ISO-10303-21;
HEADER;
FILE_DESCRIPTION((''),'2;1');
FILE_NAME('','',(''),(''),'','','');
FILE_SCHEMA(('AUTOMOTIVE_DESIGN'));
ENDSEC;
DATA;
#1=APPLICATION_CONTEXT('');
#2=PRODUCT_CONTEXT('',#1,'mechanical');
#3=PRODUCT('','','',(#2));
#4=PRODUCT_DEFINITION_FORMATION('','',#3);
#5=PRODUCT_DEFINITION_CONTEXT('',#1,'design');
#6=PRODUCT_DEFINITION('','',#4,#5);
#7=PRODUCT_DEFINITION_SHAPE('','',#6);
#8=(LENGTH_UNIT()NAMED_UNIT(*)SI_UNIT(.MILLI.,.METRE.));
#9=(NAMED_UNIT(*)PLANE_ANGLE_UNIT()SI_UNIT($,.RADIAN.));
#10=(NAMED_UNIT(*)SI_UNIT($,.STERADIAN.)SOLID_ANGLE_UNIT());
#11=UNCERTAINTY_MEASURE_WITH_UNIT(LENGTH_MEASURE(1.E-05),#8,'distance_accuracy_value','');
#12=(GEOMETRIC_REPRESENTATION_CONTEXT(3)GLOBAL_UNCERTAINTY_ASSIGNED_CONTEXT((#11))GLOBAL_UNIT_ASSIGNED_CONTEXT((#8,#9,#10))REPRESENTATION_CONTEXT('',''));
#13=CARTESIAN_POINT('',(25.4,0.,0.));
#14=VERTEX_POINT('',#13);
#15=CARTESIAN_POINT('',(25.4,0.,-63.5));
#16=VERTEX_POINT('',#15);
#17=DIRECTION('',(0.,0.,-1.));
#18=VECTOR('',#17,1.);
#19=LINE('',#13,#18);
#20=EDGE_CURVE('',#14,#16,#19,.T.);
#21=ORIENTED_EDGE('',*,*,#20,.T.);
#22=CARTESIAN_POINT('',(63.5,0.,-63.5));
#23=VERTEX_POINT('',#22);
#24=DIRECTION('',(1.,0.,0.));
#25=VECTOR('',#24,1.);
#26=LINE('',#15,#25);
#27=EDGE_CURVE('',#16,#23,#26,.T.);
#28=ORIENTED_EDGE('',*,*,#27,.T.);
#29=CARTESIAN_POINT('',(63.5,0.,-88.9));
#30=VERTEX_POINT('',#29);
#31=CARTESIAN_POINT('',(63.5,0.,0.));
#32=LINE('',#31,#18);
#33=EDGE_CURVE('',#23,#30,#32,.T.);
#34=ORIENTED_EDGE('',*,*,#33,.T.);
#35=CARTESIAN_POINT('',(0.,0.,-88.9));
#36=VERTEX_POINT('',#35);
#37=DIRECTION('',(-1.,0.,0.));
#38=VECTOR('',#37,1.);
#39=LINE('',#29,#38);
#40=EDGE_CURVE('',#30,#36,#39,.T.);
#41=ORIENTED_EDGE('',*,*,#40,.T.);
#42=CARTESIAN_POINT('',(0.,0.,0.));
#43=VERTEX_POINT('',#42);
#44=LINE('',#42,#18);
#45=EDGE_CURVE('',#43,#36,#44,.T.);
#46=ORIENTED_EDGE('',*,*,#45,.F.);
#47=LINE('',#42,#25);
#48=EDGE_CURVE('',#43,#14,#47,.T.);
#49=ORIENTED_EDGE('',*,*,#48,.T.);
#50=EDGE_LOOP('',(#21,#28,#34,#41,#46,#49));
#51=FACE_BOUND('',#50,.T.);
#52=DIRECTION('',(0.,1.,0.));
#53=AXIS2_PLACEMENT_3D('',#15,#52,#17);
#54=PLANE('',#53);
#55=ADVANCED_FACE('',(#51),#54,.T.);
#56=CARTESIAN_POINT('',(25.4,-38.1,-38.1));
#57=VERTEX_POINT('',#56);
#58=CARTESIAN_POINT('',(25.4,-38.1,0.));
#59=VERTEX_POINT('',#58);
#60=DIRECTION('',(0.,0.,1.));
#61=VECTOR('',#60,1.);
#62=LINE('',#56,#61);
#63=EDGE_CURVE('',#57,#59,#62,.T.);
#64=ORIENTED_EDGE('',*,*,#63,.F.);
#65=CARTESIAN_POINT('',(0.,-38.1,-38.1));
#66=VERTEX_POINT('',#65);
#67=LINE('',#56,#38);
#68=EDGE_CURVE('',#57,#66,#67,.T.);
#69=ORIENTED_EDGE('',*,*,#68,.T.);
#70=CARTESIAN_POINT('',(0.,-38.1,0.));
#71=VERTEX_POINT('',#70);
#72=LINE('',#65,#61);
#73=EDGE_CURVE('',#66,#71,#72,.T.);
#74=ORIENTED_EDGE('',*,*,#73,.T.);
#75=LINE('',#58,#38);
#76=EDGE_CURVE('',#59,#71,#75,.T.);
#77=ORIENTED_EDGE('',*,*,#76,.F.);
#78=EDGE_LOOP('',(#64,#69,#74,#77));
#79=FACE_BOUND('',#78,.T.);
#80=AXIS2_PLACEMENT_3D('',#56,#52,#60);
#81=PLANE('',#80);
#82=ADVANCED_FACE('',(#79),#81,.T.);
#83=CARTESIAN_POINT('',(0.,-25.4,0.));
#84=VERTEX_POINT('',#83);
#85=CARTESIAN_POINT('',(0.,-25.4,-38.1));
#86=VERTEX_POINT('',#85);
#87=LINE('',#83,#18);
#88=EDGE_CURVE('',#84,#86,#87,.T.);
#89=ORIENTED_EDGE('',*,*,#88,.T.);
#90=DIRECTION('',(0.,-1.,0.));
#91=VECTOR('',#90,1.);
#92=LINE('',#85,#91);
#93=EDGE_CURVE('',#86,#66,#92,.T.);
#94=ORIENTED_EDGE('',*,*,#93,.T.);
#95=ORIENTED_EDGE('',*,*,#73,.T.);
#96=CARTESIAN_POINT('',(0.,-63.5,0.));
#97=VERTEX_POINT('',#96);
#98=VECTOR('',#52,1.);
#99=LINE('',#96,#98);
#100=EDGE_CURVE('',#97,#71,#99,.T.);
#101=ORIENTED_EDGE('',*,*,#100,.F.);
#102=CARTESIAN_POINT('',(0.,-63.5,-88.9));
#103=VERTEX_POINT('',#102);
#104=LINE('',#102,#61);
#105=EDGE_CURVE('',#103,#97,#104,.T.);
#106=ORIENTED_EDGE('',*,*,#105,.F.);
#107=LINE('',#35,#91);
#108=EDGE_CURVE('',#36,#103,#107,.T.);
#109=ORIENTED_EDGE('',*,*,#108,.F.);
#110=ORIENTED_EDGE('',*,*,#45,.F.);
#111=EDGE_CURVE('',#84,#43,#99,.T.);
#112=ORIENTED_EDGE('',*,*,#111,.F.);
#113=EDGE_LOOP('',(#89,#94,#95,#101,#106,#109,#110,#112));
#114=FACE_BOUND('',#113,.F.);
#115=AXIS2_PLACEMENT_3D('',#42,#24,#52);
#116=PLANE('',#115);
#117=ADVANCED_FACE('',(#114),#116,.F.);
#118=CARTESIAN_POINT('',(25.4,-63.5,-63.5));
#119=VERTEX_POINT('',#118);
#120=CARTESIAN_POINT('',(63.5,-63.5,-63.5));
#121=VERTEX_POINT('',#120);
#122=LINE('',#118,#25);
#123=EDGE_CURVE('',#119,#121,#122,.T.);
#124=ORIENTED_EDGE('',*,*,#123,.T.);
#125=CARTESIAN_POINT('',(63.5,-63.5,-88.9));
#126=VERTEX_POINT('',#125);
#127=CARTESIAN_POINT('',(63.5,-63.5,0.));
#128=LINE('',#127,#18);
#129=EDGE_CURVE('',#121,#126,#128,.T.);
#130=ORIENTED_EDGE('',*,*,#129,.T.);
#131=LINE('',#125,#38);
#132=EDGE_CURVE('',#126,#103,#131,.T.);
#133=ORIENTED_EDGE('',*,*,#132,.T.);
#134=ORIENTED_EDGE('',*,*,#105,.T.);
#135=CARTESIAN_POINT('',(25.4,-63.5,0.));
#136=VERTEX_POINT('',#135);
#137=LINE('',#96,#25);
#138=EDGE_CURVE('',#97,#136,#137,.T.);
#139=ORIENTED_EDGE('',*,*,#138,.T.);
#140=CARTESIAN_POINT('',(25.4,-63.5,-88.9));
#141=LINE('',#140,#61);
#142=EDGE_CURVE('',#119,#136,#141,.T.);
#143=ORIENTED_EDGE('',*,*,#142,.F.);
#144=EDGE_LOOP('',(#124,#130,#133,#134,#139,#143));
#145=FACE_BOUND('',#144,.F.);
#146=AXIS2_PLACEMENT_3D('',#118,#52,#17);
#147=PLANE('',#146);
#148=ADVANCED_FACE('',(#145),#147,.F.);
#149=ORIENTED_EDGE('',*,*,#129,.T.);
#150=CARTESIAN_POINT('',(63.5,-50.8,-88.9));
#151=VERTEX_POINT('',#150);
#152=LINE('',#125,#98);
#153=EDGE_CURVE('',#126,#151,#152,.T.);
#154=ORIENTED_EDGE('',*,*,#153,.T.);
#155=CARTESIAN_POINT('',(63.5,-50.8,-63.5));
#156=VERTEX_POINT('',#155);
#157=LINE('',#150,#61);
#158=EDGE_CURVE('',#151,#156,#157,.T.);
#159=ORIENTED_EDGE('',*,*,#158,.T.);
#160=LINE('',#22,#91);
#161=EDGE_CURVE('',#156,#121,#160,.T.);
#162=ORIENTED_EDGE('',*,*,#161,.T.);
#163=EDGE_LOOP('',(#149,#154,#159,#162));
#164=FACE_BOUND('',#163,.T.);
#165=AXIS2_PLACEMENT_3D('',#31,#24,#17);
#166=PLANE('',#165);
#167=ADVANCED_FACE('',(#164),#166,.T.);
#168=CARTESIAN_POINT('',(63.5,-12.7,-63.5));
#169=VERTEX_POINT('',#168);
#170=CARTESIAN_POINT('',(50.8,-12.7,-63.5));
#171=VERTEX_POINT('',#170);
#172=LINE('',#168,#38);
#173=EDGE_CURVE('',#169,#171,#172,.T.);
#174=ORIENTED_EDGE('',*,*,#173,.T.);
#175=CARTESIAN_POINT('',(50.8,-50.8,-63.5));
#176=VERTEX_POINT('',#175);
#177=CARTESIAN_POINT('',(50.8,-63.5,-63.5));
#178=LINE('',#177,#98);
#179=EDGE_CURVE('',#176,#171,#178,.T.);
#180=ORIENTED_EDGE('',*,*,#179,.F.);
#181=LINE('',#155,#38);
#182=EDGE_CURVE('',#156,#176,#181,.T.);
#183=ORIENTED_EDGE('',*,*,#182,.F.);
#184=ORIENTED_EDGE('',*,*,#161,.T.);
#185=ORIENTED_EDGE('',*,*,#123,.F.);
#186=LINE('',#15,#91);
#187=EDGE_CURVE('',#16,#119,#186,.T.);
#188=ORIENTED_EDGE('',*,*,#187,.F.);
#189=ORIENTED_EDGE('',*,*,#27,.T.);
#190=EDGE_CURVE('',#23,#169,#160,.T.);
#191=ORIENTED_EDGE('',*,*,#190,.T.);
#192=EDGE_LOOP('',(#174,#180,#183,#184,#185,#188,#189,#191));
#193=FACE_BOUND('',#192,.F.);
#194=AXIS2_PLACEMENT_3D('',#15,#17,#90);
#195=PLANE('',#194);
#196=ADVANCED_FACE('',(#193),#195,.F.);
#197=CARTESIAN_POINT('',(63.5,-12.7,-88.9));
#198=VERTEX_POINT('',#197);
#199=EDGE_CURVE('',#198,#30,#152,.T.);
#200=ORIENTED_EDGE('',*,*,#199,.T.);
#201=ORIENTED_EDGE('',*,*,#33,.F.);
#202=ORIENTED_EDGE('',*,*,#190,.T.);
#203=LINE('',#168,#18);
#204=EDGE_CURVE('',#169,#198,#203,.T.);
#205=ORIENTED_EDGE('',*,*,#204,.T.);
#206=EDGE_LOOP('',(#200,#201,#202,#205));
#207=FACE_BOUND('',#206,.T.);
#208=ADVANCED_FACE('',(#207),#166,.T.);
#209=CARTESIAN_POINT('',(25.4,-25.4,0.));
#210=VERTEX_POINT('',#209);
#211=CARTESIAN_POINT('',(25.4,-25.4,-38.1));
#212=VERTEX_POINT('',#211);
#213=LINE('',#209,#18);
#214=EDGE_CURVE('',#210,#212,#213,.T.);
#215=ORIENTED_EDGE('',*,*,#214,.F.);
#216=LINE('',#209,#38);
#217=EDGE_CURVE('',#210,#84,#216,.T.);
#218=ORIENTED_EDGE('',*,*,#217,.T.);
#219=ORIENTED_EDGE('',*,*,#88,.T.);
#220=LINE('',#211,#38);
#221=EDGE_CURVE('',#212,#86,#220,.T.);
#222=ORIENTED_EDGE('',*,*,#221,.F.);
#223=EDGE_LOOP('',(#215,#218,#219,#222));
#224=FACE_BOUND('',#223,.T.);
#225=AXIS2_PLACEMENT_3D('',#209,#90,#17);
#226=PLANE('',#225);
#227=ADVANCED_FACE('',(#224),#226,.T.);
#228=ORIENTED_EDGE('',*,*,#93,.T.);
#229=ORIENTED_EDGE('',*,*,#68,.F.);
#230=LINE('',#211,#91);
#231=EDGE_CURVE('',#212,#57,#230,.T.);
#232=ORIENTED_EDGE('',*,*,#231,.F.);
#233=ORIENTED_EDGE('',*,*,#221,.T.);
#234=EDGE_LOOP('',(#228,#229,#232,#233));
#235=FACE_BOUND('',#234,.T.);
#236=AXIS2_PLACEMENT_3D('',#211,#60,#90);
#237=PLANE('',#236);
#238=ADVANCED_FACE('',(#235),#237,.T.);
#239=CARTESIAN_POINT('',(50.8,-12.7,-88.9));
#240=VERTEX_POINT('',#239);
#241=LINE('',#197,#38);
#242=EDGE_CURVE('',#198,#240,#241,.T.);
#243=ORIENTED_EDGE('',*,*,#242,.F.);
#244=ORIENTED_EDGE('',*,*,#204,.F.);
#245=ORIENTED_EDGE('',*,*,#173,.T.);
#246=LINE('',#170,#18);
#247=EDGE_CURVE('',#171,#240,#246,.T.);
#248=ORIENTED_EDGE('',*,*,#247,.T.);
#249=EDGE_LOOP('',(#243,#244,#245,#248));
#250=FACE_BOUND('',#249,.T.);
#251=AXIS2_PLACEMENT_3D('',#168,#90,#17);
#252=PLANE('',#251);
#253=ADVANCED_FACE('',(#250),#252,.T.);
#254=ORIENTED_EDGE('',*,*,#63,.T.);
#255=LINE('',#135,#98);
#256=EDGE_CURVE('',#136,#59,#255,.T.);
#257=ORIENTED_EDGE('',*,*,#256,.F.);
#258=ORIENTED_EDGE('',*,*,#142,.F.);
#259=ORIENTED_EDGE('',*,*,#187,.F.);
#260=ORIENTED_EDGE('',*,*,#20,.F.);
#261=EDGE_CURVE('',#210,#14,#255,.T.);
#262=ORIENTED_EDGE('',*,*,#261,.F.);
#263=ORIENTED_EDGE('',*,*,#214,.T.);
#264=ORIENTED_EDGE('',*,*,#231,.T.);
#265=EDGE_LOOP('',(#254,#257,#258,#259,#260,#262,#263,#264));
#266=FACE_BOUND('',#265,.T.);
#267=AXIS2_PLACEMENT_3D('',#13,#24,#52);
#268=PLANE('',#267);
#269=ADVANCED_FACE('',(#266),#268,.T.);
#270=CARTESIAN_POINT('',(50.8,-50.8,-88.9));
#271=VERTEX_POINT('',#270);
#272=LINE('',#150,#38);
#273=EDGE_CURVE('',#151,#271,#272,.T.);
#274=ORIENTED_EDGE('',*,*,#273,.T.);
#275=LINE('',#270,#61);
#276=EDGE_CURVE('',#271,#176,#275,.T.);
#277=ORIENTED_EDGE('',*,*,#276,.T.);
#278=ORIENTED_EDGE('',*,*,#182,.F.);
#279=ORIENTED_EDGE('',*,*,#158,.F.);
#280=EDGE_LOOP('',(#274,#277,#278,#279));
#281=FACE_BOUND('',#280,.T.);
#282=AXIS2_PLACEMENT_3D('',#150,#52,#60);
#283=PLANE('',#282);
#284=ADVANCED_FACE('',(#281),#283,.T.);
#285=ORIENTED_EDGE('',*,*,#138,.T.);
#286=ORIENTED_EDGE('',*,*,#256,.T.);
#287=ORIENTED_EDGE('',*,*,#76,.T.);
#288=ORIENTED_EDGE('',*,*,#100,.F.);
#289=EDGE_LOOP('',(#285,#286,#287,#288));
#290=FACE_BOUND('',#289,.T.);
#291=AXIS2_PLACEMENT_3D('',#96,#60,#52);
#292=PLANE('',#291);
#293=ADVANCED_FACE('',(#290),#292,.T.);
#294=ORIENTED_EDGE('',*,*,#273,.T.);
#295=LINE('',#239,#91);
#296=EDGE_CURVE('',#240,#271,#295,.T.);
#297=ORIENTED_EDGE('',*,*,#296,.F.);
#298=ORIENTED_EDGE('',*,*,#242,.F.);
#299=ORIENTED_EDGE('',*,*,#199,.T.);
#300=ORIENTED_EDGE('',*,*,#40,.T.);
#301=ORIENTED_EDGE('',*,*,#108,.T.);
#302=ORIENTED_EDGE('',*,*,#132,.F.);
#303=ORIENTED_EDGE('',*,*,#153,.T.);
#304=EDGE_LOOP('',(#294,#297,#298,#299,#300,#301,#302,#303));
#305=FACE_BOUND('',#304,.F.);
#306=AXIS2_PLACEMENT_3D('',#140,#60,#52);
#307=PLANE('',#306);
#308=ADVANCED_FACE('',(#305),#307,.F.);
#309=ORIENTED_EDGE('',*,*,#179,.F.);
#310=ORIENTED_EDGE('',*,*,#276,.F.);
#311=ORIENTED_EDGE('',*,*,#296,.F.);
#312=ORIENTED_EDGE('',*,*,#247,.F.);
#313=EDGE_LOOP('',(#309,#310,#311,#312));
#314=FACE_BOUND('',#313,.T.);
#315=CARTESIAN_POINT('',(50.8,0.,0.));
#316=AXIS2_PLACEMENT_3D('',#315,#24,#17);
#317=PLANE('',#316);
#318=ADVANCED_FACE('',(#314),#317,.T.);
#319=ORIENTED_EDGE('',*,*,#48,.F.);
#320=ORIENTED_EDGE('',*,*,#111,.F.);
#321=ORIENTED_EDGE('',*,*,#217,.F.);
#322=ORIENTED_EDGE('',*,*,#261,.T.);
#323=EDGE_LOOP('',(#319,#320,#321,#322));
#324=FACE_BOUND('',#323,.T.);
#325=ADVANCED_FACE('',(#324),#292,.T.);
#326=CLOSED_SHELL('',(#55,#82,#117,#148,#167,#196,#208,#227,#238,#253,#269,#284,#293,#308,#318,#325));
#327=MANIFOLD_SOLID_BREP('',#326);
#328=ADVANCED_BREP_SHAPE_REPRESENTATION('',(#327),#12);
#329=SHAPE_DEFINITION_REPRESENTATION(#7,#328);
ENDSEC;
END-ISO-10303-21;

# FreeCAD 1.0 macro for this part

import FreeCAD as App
import Part
import Sketcher
Q = App.Units.Quantity

doc = App.newDocument("Part")
params = doc.addObject("Spreadsheet::Sheet", "Params")
for row, (alias, value) in enumerate([
    ("sketch1_width", "2.5 in"),
    ("sketch1_height", "3.5 in"),
    ("pad1_length", "1 in"),
    ("sketch2_width", "0.5 in"),
    ("sketch2_height", "1.5 in"),
    ("pocket1_length", "1 in"),
    ("sketch3_height", "1 in"),
    ("sketch3_width", "2.5 in"),
    ("pad2_length", "1.5 in"),
    ("sketch4_width", "1.5 in"),
    ("sketch4_height", "1 in"),
    ("pocket2_length", "0.5 in"),
], start=1):
    params.set(f"A{row}", alias)
    params.set(f"B{row}", "=" + value)
    params.setAlias(f"B{row}", alias)

body = doc.addObject("PartDesign::Body", "Body")

# Sketch on YZ plane
sketch1 = body.newObject("Sketcher::SketchObject", "Sketch")
sketch1.AttachmentSupport = (doc.getObject("YZ_Plane"), [""])
sketch1.MapMode = "FlatFace"
sketch1.addGeometry([
    Part.LineSegment(App.Vector(0, -89, 0), App.Vector(0, 0, 0)),
    Part.LineSegment(App.Vector(0, 0, 0), App.Vector(-64, 0, 0)),
    Part.LineSegment(App.Vector(-64, 0, 0), App.Vector(-64, -89, 0)),
    Part.LineSegment(App.Vector(-64, -89, 0), App.Vector(0, -89, 0)),
], False)
sketch1.addConstraint([
    Sketcher.Constraint("Coincident", 0, 2, 1, 1),
    Sketcher.Constraint("Coincident", 1, 2, 2, 1),
    Sketcher.Constraint("Coincident", 2, 2, 3, 1),
    Sketcher.Constraint("Coincident", 3, 2, 0, 1),
    Sketcher.Constraint("Vertical", 0),
    Sketcher.Constraint("Horizontal", 1),
    Sketcher.Constraint("Vertical", 2),
    Sketcher.Constraint("Horizontal", 3),
    Sketcher.Constraint("Coincident", 0, 2, -1, 1),
    Sketcher.Constraint("DistanceX", 1, 2, 1, 1, Q("2.5 in")),
    Sketcher.Constraint("DistanceY", 0, 1, 0, 2, Q("3.5 in")),
])
sketch1.setExpression("Constraints[9]", "Params.sketch1_width")
sketch1.setExpression("Constraints[10]", "Params.sketch1_height")
pad1 = body.newObject("PartDesign::Pad", "Pad")
pad1.Profile = sketch1
pad1.setExpression("Length", "Params.pad1_length")

# Sketch on YZ plane
sketch2 = body.newObject("Sketcher::SketchObject", "Sketch001")
sketch2.AttachmentSupport = (doc.getObject("YZ_Plane"), [""])
sketch2.MapMode = "FlatFace"
sketch2.AttachmentOffset = App.Placement(App.Vector(0, 0, 1 * 25.4), App.Rotation())
sketch2.addGeometry([
    Part.LineSegment(App.Vector(-25, -38, 0), App.Vector(-25, 0, 0)),
    Part.LineSegment(App.Vector(-25, 0, 0), App.Vector(-38, 0, 0)),
    Part.LineSegment(App.Vector(-38, 0, 0), App.Vector(-38, -38, 0)),
    Part.LineSegment(App.Vector(-38, -38, 0), App.Vector(-25, -38, 0)),
], False)
sketch2.addConstraint([
    Sketcher.Constraint("Coincident", 0, 2, 1, 1),
    Sketcher.Constraint("Coincident", 1, 2, 2, 1),
    Sketcher.Constraint("Coincident", 2, 2, 3, 1),
    Sketcher.Constraint("Coincident", 3, 2, 0, 1),
    Sketcher.Constraint("Vertical", 0),
    Sketcher.Constraint("Horizontal", 1),
    Sketcher.Constraint("Vertical", 2),
    Sketcher.Constraint("Horizontal", 3),
    Sketcher.Constraint("PointOnObject", 0, 2, -1),
    Sketcher.Constraint("DistanceX", 1, 2, 1, 1, Q("0.5 in")),
    Sketcher.Constraint("DistanceY", 0, 1, 0, 2, Q("1.5 in")),
    Sketcher.Constraint("DistanceX", 0, 2, -1, 1, Q("1 in")),
])
sketch2.setExpression("Constraints[9]", "Params.sketch2_width")
sketch2.setExpression("Constraints[10]", "Params.sketch2_height")
pocket1 = body.newObject("PartDesign::Pocket", "Pocket")
pocket1.Profile = sketch2
pocket1.setExpression("Length", "Params.pocket1_length")

# Sketch on YZ plane
sketch3 = body.newObject("Sketcher::SketchObject", "Sketch002")
sketch3.AttachmentSupport = (doc.getObject("YZ_Plane"), [""])
sketch3.MapMode = "FlatFace"
sketch3.AttachmentOffset = App.Placement(App.Vector(0, 0, 1 * 25.4), App.Rotation())
sketch3.addGeometry([
    Part.LineSegment(App.Vector(0, -89, 0), App.Vector(0, -64, 0)),
    Part.LineSegment(App.Vector(0, -64, 0), App.Vector(-64, -64, 0)),
    Part.LineSegment(App.Vector(-64, -64, 0), App.Vector(-64, -89, 0)),
    Part.LineSegment(App.Vector(-64, -89, 0), App.Vector(0, -89, 0)),
], False)
sketch3.addConstraint([
    Sketcher.Constraint("Coincident", 0, 2, 1, 1),
    Sketcher.Constraint("Coincident", 1, 2, 2, 1),
    Sketcher.Constraint("Coincident", 2, 2, 3, 1),
    Sketcher.Constraint("Coincident", 3, 2, 0, 1),
    Sketcher.Constraint("Vertical", 0),
    Sketcher.Constraint("Horizontal", 1),
    Sketcher.Constraint("Vertical", 2),
    Sketcher.Constraint("Horizontal", 3),
    Sketcher.Constraint("PointOnObject", 0, 2, -2),
    Sketcher.Constraint("DistanceY", 0, 1, 0, 2, Q("1 in")),
    Sketcher.Constraint("DistanceX", 1, 2, 1, 1, Q("2.5 in")),
    Sketcher.Constraint("DistanceY", 0, 2, -1, 1, Q("2.5 in")),
])
sketch3.setExpression("Constraints[9]", "Params.sketch3_height")
sketch3.setExpression("Constraints[10]", "Params.sketch3_width")
pad2 = body.newObject("PartDesign::Pad", "Pad001")
pad2.Profile = sketch3
pad2.setExpression("Length", "Params.pad2_length")

# Sketch on YZ plane
sketch4 = body.newObject("Sketcher::SketchObject", "Sketch003")
sketch4.AttachmentSupport = (doc.getObject("YZ_Plane"), [""])
sketch4.MapMode = "FlatFace"
sketch4.AttachmentOffset = App.Placement(App.Vector(0, 0, 2.5 * 25.4), App.Rotation())
sketch4.addGeometry([
    Part.LineSegment(App.Vector(-13, -89, 0), App.Vector(-13, -64, 0)),
    Part.LineSegment(App.Vector(-13, -64, 0), App.Vector(-51, -64, 0)),
    Part.LineSegment(App.Vector(-51, -64, 0), App.Vector(-51, -89, 0)),
    Part.LineSegment(App.Vector(-51, -89, 0), App.Vector(-13, -89, 0)),
], False)
sketch4.addConstraint([
    Sketcher.Constraint("Coincident", 0, 2, 1, 1),
    Sketcher.Constraint("Coincident", 1, 2, 2, 1),
    Sketcher.Constraint("Coincident", 2, 2, 3, 1),
    Sketcher.Constraint("Coincident", 3, 2, 0, 1),
    Sketcher.Constraint("Vertical", 0),
    Sketcher.Constraint("Horizontal", 1),
    Sketcher.Constraint("Vertical", 2),
    Sketcher.Constraint("Horizontal", 3),
    Sketcher.Constraint("DistanceX", 1, 2, 1, 1, Q("1.5 in")),
    Sketcher.Constraint("DistanceX", 0, 2, -1, 1, Q("0.5 in")),
    Sketcher.Constraint("DistanceY", 0, 1, 0, 2, Q("1 in")),
    Sketcher.Constraint("DistanceY", 0, 2, -1, 1, Q("2.5 in")),
])
sketch4.setExpression("Constraints[8]", "Params.sketch4_width")
sketch4.setExpression("Constraints[10]", "Params.sketch4_height")
pocket2 = body.newObject("PartDesign::Pocket", "Pocket001")
pocket2.Profile = sketch4
pocket2.setExpression("Length", "Params.pocket2_length")

doc.recompute()
